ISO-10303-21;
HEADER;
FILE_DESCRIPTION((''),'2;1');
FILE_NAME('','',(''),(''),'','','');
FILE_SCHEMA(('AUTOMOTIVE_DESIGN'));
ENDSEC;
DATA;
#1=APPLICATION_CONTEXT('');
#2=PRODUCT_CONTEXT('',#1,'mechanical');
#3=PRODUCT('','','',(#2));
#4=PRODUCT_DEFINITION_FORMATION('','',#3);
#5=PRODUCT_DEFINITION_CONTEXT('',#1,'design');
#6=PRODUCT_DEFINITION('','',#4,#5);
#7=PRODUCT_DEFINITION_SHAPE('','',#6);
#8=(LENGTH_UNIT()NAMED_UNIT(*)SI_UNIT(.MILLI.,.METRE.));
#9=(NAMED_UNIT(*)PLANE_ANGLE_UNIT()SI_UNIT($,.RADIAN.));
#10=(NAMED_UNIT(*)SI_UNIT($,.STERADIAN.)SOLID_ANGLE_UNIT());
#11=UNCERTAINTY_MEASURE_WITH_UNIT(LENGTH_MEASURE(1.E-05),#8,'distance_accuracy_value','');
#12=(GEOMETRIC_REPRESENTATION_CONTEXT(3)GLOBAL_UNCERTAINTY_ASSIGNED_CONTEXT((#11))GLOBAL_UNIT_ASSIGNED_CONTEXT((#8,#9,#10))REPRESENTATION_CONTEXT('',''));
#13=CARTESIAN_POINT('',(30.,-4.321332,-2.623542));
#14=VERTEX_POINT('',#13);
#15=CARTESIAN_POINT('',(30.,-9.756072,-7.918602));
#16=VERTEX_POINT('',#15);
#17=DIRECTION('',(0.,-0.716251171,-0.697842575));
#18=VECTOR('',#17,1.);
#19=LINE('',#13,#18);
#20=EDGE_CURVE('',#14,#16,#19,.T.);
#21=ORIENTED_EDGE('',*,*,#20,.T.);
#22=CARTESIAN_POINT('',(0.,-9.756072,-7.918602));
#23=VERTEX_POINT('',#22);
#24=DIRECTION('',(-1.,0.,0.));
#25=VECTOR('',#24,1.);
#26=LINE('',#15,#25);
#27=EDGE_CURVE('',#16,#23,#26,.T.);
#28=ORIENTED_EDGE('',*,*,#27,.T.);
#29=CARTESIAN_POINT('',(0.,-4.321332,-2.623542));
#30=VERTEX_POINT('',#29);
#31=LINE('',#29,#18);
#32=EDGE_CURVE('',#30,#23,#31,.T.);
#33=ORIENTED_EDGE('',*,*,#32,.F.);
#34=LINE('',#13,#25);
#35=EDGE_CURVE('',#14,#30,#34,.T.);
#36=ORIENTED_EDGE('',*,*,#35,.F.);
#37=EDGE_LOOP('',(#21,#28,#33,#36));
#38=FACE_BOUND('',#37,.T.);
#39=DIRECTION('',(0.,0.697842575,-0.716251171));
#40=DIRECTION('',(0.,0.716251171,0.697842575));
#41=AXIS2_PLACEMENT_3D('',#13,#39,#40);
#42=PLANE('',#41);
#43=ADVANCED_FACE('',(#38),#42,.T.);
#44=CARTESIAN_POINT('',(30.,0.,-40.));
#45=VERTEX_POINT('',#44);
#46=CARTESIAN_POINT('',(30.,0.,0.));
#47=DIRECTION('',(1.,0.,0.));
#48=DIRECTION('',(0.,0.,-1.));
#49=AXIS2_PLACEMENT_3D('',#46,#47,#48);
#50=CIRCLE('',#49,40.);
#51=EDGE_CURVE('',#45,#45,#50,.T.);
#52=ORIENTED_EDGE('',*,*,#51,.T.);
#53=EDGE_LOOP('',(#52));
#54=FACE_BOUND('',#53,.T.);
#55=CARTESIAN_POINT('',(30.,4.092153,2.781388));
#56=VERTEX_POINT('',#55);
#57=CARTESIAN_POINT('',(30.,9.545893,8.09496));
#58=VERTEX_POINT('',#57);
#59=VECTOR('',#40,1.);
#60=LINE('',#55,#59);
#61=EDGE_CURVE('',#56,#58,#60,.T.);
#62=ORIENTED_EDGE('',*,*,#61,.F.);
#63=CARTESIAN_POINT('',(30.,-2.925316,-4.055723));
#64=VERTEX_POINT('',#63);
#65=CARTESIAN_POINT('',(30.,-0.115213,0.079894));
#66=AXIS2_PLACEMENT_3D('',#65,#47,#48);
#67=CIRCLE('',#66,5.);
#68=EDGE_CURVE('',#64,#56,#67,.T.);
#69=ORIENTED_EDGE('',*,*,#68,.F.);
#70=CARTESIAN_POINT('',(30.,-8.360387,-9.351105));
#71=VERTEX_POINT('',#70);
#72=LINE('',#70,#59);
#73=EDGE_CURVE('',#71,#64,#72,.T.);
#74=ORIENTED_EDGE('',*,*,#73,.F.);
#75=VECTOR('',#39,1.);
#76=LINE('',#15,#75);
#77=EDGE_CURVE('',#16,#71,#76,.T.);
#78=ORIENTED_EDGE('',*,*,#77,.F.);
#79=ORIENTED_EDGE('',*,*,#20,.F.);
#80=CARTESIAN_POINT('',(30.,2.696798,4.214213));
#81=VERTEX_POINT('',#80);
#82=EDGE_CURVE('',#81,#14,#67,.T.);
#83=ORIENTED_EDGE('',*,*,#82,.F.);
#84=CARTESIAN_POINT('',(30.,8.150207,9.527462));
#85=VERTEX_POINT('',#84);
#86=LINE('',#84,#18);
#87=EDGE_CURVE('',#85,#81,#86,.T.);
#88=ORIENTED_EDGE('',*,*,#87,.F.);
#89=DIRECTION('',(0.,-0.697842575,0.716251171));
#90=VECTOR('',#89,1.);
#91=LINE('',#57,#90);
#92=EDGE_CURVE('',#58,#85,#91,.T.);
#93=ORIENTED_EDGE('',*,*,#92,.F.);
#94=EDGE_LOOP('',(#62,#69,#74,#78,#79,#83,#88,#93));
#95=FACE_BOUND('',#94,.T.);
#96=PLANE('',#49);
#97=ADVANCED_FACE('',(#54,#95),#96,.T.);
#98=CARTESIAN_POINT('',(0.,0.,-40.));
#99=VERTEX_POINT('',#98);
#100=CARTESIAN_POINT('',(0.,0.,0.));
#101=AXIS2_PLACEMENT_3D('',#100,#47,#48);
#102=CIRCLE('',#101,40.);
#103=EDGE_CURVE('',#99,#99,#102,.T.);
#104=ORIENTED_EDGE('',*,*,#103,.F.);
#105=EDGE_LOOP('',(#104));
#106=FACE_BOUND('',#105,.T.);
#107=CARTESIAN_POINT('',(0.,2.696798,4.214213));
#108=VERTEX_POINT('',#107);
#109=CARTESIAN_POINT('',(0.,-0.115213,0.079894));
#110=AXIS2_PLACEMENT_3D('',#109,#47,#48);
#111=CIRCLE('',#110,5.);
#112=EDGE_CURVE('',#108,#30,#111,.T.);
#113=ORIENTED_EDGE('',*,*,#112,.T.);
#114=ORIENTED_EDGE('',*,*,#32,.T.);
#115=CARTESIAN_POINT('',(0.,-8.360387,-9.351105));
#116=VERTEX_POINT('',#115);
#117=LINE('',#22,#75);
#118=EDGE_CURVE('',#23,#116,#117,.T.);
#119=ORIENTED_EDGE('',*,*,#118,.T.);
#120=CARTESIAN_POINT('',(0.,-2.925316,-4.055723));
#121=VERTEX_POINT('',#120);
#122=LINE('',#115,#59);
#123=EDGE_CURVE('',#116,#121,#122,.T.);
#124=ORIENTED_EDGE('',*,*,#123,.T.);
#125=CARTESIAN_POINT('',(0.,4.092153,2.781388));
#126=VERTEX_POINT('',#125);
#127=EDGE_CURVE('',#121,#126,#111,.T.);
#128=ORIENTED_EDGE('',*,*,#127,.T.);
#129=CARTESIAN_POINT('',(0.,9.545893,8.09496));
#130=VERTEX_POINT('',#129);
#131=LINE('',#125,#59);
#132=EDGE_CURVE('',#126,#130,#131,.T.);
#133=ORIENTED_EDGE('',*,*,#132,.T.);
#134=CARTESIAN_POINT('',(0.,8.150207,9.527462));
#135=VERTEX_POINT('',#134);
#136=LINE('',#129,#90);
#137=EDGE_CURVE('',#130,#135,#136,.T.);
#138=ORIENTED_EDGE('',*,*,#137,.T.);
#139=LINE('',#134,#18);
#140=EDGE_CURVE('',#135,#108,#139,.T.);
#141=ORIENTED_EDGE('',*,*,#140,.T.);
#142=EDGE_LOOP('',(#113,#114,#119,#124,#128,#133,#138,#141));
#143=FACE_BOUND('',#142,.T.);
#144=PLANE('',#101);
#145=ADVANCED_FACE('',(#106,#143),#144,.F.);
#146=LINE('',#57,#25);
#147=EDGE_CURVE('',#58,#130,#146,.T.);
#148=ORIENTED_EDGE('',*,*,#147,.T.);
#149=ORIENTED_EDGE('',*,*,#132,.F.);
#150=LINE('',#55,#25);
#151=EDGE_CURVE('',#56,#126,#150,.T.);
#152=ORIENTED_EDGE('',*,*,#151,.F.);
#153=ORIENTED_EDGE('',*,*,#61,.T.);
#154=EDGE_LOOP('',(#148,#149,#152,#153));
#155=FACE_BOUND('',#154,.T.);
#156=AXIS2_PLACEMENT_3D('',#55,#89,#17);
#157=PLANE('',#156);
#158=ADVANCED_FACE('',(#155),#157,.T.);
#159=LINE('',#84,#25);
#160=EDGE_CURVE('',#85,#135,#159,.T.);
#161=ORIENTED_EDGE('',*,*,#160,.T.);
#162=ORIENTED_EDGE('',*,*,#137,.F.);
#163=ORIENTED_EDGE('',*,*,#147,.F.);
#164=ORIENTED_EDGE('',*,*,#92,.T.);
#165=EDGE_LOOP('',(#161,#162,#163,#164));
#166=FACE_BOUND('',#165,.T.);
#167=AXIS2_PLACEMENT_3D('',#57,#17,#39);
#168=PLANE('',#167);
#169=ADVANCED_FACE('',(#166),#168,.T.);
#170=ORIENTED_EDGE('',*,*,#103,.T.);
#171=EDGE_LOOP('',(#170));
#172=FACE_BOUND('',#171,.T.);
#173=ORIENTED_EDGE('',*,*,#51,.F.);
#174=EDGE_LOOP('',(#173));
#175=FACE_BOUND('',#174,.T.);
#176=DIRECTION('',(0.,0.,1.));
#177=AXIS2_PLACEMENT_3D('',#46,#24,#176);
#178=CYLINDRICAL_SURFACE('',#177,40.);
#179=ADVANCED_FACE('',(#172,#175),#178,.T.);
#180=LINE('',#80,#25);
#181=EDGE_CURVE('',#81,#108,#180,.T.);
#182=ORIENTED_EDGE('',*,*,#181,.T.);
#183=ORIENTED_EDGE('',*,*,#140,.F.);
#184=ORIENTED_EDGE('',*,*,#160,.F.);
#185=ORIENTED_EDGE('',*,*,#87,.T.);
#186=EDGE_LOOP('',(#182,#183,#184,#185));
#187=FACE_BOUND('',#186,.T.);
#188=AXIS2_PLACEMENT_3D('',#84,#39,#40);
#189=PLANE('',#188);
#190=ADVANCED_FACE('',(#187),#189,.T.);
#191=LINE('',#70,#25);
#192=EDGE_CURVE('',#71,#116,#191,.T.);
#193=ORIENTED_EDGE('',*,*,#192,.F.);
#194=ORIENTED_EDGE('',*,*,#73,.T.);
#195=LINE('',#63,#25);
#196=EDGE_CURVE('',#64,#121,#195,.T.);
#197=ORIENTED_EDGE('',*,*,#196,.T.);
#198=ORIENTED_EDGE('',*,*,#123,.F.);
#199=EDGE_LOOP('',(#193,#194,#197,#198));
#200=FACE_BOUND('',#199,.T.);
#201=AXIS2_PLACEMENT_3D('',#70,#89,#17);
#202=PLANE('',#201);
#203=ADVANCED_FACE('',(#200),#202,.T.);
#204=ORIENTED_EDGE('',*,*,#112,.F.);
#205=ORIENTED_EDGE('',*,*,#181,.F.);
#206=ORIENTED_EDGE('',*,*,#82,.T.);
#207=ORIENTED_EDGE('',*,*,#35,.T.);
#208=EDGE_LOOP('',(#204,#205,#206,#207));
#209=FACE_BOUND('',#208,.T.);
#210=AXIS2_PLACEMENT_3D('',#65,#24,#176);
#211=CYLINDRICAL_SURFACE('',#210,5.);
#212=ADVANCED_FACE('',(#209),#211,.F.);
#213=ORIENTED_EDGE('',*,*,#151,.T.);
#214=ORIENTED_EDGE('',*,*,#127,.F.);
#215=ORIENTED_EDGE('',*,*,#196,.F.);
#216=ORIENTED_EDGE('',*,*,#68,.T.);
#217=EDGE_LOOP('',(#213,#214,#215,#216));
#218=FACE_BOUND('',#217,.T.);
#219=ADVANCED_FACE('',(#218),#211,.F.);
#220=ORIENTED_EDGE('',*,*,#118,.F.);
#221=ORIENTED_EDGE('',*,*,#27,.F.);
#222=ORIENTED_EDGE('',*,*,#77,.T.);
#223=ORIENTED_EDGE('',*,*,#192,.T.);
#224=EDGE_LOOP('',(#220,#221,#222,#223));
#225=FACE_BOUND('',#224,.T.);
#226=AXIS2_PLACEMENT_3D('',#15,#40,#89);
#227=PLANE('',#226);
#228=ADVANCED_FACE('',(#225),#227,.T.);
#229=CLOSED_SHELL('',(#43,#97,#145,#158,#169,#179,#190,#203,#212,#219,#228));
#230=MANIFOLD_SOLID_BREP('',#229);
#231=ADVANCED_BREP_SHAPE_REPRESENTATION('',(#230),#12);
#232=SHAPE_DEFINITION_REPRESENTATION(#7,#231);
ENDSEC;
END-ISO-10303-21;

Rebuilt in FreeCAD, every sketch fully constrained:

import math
import FreeCAD as App
import Part
import Sketcher
from FreeCAD import Vector
Q = App.Units.Quantity

doc = App.newDocument("Part")
body = doc.addObject("PartDesign::Body", "Body")

sketch1 = body.newObject("Sketcher::SketchObject", "Sketch")
sketch1.AttachmentSupport = (doc.getObject("YZ_Plane"), [""])
sketch1.MapMode = "FlatFace"
sketch1.addGeometry(Part.Circle(Vector(0, 0, 0), Vector(0, 0, 1), 40), False)
sketch1.addConstraint(Sketcher.Constraint("Coincident", 0, 3, -1, 1))
sketch1.addConstraint(Sketcher.Constraint("Diameter", 0, Q("80 mm")))
pad1 = body.newObject("PartDesign::Pad", "Pad")
pad1.Profile = sketch1
pad1.Length = 30

sketch2 = body.newObject("Sketcher::SketchObject", "Sketch001")
sketch2.AttachmentSupport = (doc.getObject("YZ_Plane"), [""])
sketch2.MapMode = "FlatFace"
sketch2.addGeometry(Part.LineSegment(Vector(-4.3, -2.6, 0), Vector(-9.8, -7.9, 0)), False)
sketch2.addGeometry(Part.LineSegment(Vector(-9.8, -7.9, 0), Vector(-8.4, -9.4, 0)), False)
sketch2.addGeometry(Part.LineSegment(Vector(-8.4, -9.4, 0), Vector(-2.9, -4.1, 0)), False)
sketch2.addGeometry(Part.ArcOfCircle(Part.Circle(Vector(-0.1, 0.1, 0), Vector(0, 0, 1), 5), math.radians(-124), math.radians(33)), False)
sketch2.addGeometry(Part.LineSegment(Vector(4.1, 2.8, 0), Vector(9.5, 8.1, 0)), False)
sketch2.addGeometry(Part.LineSegment(Vector(9.5, 8.1, 0), Vector(8.2, 9.5, 0)), False)
sketch2.addGeometry(Part.LineSegment(Vector(8.2, 9.5, 0), Vector(2.7, 4.2, 0)), False)
sketch2.addGeometry(Part.ArcOfCircle(Part.Circle(Vector(-0.1, 0.1, 0), Vector(0, 0, 1), 5), math.radians(56), math.radians(213)), False)
sketch2.addConstraint(Sketcher.Constraint("Coincident", 0, 2, 1, 1))
sketch2.addConstraint(Sketcher.Constraint("Coincident", 1, 2, 2, 1))
sketch2.addConstraint(Sketcher.Constraint("Coincident", 2, 2, 3, 1))
sketch2.addConstraint(Sketcher.Constraint("Coincident", 3, 2, 4, 1))
sketch2.addConstraint(Sketcher.Constraint("Coincident", 4, 2, 5, 1))
sketch2.addConstraint(Sketcher.Constraint("Coincident", 5, 2, 6, 1))
sketch2.addConstraint(Sketcher.Constraint("Coincident", 6, 2, 7, 1))
sketch2.addConstraint(Sketcher.Constraint("Coincident", 7, 2, 0, 1))
sketch2.addConstraint(Sketcher.Constraint("Coincident", 7, 3, 3, 3))
sketch2.addConstraint(Sketcher.Constraint("Equal", 3, 7))
sketch2.addConstraint(Sketcher.Constraint("Perpendicular", 0, 1))
sketch2.addConstraint(Sketcher.Constraint("Perpendicular", 1, 2))
sketch2.addConstraint(Sketcher.Constraint("Parallel", 2, 4))
sketch2.addConstraint(Sketcher.Constraint("Perpendicular", 4, 5))
sketch2.addConstraint(Sketcher.Constraint("Perpendicular", 5, 6))
sketch2.addConstraint(Sketcher.Constraint("Equal", 1, 5))
sketch2.addConstraint(Sketcher.Constraint("Radius", 3, Q("5 mm")))
sketch2.addConstraint(Sketcher.Constraint("Distance", 1, Q("2 mm")))
sketch2.addConstraint(Sketcher.Constraint("DistanceY", 1, 2, 7, 3, Q("9.430998 mm")))
sketch2.addConstraint(Sketcher.Constraint("DistanceX", -1, 1, 6, 2, Q("2.696798 mm")))
sketch2.addConstraint(Sketcher.Constraint("Distance", 2, Q("7.588219 mm")))
sketch2.addConstraint(Sketcher.Constraint("DistanceX", 0, 2, -1, 1, Q("9.756072 mm")))
sketch2.addConstraint(Sketcher.Constraint("DistanceY", -1, 1, 3, 2, Q("2.781388 mm")))
sketch2.addConstraint(Sketcher.Constraint("DistanceY", -1, 1, 4, 2, Q("8.09496 mm")))
sketch2.addConstraint(Sketcher.Constraint("DistanceX", 7, 2, -1, 1, Q("4.321332 mm")))
pocket1 = body.newObject("PartDesign::Pocket", "Pocket")
pocket1.Profile = sketch2
pocket1.Type = "ThroughAll"
pocket1.Reversed = True

doc.recompute()
